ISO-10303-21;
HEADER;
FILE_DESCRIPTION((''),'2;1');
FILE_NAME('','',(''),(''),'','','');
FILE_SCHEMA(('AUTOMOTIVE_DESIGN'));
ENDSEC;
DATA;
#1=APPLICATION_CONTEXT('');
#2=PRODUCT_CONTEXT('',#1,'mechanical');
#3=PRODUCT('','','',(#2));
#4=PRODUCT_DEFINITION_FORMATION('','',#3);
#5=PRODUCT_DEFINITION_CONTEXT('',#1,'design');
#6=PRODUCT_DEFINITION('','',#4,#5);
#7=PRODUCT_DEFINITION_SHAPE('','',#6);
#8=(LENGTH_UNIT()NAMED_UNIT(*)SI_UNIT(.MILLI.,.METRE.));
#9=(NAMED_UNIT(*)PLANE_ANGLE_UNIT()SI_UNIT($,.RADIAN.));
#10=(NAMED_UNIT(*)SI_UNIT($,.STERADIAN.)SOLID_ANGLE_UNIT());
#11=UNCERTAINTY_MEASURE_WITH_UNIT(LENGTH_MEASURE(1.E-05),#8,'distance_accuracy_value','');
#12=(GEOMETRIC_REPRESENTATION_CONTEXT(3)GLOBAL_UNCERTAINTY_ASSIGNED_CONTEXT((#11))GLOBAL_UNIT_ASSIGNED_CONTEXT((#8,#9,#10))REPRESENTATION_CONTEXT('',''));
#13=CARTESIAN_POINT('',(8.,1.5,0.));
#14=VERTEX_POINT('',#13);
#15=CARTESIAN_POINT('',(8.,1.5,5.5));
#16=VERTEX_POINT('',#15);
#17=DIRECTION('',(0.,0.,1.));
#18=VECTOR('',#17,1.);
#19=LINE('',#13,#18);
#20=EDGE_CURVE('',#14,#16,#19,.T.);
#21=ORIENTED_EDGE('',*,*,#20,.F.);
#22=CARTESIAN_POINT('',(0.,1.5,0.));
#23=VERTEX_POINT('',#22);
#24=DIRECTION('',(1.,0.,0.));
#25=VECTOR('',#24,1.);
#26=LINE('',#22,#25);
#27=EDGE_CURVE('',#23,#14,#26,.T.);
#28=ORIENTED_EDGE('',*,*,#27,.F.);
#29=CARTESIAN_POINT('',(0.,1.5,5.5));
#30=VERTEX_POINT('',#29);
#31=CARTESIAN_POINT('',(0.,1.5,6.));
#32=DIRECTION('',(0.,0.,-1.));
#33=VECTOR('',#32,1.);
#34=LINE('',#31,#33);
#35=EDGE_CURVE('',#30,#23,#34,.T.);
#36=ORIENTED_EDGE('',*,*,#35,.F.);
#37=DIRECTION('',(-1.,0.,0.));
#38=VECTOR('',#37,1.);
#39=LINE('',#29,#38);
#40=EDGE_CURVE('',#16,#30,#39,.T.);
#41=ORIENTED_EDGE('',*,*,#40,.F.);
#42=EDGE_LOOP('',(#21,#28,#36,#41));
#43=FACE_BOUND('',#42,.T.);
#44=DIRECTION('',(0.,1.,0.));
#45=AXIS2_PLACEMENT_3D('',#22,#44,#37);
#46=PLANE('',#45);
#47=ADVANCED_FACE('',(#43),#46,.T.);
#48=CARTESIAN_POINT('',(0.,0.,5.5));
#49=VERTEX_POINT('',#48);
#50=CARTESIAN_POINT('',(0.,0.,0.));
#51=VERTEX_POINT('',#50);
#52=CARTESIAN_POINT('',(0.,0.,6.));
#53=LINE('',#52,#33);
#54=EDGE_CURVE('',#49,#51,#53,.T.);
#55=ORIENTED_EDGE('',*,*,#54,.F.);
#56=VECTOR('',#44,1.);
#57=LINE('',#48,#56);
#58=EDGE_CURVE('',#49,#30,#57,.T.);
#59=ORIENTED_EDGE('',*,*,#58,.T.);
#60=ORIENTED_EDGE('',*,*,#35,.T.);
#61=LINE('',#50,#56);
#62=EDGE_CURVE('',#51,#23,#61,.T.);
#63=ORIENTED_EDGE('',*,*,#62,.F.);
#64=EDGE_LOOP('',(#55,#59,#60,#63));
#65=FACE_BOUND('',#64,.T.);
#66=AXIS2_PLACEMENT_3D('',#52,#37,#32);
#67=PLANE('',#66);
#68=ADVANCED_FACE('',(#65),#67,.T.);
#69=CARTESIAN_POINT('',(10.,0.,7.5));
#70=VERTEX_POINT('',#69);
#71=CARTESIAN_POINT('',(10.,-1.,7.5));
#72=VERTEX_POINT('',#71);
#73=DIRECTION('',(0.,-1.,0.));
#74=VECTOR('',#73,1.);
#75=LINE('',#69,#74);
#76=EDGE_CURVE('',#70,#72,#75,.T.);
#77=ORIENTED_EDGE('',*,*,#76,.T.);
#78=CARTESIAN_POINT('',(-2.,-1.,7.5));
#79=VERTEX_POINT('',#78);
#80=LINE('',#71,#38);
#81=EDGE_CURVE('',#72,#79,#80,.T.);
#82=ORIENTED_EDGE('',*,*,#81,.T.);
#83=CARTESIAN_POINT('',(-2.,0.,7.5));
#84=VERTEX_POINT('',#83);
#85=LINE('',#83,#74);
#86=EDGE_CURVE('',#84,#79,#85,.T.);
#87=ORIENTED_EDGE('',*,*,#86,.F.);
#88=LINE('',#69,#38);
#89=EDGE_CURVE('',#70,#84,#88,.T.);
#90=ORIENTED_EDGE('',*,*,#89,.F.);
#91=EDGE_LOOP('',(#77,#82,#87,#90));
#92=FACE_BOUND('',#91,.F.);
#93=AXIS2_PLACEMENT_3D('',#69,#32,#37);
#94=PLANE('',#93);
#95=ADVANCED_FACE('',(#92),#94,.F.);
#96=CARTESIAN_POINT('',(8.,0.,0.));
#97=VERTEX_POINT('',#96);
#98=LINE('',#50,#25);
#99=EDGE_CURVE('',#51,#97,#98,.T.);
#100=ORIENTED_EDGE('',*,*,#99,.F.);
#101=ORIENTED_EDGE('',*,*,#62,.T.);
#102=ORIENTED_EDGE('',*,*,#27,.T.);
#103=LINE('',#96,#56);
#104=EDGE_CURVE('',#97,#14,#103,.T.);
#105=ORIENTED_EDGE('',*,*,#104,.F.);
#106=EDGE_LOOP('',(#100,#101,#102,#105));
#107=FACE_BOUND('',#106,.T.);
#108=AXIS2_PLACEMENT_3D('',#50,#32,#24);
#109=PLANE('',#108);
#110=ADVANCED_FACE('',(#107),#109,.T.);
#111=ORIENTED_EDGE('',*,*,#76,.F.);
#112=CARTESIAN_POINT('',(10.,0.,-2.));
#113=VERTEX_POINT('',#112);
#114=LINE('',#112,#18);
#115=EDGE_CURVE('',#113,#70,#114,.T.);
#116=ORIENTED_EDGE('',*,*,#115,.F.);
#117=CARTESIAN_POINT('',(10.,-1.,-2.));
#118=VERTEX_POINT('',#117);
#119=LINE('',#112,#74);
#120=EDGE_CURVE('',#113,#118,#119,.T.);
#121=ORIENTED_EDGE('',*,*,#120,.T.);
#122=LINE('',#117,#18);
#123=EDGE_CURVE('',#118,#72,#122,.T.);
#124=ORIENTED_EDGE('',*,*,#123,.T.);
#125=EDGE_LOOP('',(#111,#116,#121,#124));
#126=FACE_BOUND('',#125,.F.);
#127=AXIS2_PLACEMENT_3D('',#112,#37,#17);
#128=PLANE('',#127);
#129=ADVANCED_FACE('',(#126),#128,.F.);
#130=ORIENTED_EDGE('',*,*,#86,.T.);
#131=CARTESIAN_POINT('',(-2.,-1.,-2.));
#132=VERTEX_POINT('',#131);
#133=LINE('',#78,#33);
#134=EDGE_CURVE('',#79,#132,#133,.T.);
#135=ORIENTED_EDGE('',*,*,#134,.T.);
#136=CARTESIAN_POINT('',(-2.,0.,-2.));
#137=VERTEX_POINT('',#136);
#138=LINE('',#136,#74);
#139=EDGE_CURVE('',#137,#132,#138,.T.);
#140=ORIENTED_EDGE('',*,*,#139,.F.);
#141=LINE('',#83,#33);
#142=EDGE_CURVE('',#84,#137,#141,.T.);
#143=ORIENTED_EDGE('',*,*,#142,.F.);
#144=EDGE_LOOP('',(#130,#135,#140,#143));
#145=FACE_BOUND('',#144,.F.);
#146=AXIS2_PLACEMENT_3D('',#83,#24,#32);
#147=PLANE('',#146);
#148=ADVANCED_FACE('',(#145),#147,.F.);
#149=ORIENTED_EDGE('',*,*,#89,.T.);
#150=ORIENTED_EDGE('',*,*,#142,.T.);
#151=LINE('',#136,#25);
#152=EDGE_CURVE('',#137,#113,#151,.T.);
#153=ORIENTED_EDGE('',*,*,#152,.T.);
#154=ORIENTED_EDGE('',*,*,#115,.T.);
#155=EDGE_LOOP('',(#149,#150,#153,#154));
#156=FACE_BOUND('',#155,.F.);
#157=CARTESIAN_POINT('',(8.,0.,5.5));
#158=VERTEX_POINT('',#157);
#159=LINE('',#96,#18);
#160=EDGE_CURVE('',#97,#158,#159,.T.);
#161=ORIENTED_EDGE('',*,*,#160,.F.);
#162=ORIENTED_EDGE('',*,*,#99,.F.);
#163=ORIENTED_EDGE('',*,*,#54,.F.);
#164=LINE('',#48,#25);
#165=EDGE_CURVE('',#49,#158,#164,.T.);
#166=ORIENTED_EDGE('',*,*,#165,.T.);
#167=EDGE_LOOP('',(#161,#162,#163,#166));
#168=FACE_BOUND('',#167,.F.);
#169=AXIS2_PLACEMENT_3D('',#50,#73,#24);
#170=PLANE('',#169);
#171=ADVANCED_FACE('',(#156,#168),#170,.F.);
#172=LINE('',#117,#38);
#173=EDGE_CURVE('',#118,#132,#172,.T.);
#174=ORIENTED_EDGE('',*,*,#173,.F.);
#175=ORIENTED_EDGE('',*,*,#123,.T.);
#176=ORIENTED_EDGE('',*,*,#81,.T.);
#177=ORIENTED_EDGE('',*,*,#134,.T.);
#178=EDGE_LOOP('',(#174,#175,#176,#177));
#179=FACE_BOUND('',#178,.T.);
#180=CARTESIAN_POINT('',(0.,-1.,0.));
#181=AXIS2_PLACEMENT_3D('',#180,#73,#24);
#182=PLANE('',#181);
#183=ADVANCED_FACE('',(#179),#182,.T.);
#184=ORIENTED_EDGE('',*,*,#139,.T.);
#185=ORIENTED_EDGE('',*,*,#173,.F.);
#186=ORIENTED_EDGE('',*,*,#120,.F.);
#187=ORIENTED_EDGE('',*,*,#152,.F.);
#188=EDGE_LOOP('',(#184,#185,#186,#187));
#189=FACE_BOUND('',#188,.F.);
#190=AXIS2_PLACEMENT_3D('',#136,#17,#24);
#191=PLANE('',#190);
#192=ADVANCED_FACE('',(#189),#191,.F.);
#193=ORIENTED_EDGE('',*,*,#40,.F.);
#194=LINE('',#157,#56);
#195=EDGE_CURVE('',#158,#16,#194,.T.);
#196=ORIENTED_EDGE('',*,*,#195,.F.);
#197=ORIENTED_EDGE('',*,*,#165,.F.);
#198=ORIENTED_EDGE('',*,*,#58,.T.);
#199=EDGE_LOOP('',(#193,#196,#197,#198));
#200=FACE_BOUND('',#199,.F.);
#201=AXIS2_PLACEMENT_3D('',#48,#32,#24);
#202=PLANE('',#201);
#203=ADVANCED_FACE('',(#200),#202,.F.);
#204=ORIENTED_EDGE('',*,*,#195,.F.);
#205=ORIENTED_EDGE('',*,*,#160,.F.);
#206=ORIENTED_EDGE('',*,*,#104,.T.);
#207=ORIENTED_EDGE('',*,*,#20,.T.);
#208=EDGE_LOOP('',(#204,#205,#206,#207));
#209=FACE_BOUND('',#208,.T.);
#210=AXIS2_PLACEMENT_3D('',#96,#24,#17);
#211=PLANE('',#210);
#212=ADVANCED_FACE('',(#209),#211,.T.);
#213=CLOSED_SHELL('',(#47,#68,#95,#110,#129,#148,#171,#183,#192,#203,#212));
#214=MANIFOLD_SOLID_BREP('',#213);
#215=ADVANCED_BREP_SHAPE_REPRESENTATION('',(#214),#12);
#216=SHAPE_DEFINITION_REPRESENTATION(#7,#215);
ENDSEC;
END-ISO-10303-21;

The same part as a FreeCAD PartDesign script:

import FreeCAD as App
import Part
import Sketcher
Q = App.Units.Quantity

doc = App.newDocument("Part")
body = doc.addObject("PartDesign::Body", "Body")

# Sketch on XZ plane
sketch1 = body.newObject("Sketcher::SketchObject", "Sketch")
sketch1.AttachmentSupport = (doc.getObject("XZ_Plane"), [""])
sketch1.MapMode = "FlatFace"
sketch1.addGeometry([
    Part.LineSegment(App.Vector(8, 0, 0), App.Vector(0, 0, 0)),
    Part.LineSegment(App.Vector(0, 0, 0), App.Vector(0, 6, 0)),
    Part.LineSegment(App.Vector(0, 6, 0), App.Vector(8, 6, 0)),
    Part.LineSegment(App.Vector(8, 6, 0), App.Vector(8, 0, 0)),
], False)
sketch1.addConstraint([
    Sketcher.Constraint("Coincident", 0, 2, 1, 1),
    Sketcher.Constraint("Coincident", 1, 2, 2, 1),
    Sketcher.Constraint("Coincident", 2, 2, 3, 1),
    Sketcher.Constraint("Coincident", 3, 2, 0, 1),
    Sketcher.Constraint("Horizontal", 0),
    Sketcher.Constraint("Vertical", 1),
    Sketcher.Constraint("Horizontal", 2),
    Sketcher.Constraint("Vertical", 3),
    Sketcher.Constraint("Coincident", 0, 2, -1, 1),
    Sketcher.Constraint("DistanceX", 0, 2, 0, 1, Q("8 mm")),
    Sketcher.Constraint("DistanceY", 1, 1, 1, 2, Q("6 mm")),
])
pad1 = body.newObject("PartDesign::Pad", "Pad")
pad1.Profile = sketch1
pad1.Length = 1.5
pad1.Reversed = True

# Sketch on XZ plane
sketch2 = body.newObject("Sketcher::SketchObject", "Sketch001")
sketch2.AttachmentSupport = (doc.getObject("XZ_Plane"), [""])
sketch2.MapMode = "FlatFace"
sketch2.addGeometry([
    Part.LineSegment(App.Vector(8, 5.5, 0), App.Vector(8, 6, 0)),
    Part.LineSegment(App.Vector(8, 6, 0), App.Vector(0, 6, 0)),
    Part.LineSegment(App.Vector(0, 6, 0), App.Vector(0, 5.5, 0)),
    Part.LineSegment(App.Vector(0, 5.5, 0), App.Vector(8, 5.5, 0)),
], False)
sketch2.addConstraint([
    Sketcher.Constraint("Coincident", 0, 2, 1, 1),
    Sketcher.Constraint("Coincident", 1, 2, 2, 1),
    Sketcher.Constraint("Coincident", 2, 2, 3, 1),
    Sketcher.Constraint("Coincident", 3, 2, 0, 1),
    Sketcher.Constraint("Vertical", 0),
    Sketcher.Constraint("Horizontal", 1),
    Sketcher.Constraint("Vertical", 2),
    Sketcher.Constraint("Horizontal", 3),
    Sketcher.Constraint("PointOnObject", 1, 2, -2),
    Sketcher.Constraint("DistanceY", -1, 1, 2, 2, Q("5.5 mm")),
    Sketcher.Constraint("DistanceX", 1, 2, 1, 1, Q("8 mm")),
    Sketcher.Constraint("DistanceY", 0, 1, 0, 2, Q("0.5 mm")),
])
pocket1 = body.newObject("PartDesign::Pocket", "Pocket")
pocket1.Profile = sketch2
pocket1.Length = 10

# Sketch on XZ plane
sketch3 = body.newObject("Sketcher::SketchObject", "Sketch002")
sketch3.AttachmentSupport = (doc.getObject("XZ_Plane"), [""])
sketch3.MapMode = "FlatFace"
sketch3.addGeometry([
    Part.LineSegment(App.Vector(-2, -2, 0), App.Vector(10, -2, 0)),
    Part.LineSegment(App.Vector(10, -2, 0), App.Vector(10, 8, 0)),
    Part.LineSegment(App.Vector(10, 8, 0), App.Vector(-2, 8, 0)),
    Part.LineSegment(App.Vector(-2, 8, 0), App.Vector(-2, -2, 0)),
], False)
sketch3.addConstraint([
    Sketcher.Constraint("Coincident", 0, 2, 1, 1),
    Sketcher.Constraint("Coincident", 1, 2, 2, 1),
    Sketcher.Constraint("Coincident", 2, 2, 3, 1),
    Sketcher.Constraint("Coincident", 3, 2, 0, 1),
    Sketcher.Constraint("Horizontal", 0),
    Sketcher.Constraint("Vertical", 1),
    Sketcher.Constraint("Horizontal", 2),
    Sketcher.Constraint("Vertical", 3),
    Sketcher.Constraint("DistanceX", 0, 1, 0, 2, Q("12 mm")),
    Sketcher.Constraint("DistanceY", 1, 1, 1, 2, Q("9.5 mm")),
    Sketcher.Constraint("DistanceX", -1, 1, 0, 2, Q("10 mm")),
    Sketcher.Constraint("DistanceY", 0, 2, -1, 1, Q("2 mm")),
])
pad2 = body.newObject("PartDesign::Pad", "Pad001")
pad2.Profile = sketch3
pad2.Length = 1

doc.recompute()
